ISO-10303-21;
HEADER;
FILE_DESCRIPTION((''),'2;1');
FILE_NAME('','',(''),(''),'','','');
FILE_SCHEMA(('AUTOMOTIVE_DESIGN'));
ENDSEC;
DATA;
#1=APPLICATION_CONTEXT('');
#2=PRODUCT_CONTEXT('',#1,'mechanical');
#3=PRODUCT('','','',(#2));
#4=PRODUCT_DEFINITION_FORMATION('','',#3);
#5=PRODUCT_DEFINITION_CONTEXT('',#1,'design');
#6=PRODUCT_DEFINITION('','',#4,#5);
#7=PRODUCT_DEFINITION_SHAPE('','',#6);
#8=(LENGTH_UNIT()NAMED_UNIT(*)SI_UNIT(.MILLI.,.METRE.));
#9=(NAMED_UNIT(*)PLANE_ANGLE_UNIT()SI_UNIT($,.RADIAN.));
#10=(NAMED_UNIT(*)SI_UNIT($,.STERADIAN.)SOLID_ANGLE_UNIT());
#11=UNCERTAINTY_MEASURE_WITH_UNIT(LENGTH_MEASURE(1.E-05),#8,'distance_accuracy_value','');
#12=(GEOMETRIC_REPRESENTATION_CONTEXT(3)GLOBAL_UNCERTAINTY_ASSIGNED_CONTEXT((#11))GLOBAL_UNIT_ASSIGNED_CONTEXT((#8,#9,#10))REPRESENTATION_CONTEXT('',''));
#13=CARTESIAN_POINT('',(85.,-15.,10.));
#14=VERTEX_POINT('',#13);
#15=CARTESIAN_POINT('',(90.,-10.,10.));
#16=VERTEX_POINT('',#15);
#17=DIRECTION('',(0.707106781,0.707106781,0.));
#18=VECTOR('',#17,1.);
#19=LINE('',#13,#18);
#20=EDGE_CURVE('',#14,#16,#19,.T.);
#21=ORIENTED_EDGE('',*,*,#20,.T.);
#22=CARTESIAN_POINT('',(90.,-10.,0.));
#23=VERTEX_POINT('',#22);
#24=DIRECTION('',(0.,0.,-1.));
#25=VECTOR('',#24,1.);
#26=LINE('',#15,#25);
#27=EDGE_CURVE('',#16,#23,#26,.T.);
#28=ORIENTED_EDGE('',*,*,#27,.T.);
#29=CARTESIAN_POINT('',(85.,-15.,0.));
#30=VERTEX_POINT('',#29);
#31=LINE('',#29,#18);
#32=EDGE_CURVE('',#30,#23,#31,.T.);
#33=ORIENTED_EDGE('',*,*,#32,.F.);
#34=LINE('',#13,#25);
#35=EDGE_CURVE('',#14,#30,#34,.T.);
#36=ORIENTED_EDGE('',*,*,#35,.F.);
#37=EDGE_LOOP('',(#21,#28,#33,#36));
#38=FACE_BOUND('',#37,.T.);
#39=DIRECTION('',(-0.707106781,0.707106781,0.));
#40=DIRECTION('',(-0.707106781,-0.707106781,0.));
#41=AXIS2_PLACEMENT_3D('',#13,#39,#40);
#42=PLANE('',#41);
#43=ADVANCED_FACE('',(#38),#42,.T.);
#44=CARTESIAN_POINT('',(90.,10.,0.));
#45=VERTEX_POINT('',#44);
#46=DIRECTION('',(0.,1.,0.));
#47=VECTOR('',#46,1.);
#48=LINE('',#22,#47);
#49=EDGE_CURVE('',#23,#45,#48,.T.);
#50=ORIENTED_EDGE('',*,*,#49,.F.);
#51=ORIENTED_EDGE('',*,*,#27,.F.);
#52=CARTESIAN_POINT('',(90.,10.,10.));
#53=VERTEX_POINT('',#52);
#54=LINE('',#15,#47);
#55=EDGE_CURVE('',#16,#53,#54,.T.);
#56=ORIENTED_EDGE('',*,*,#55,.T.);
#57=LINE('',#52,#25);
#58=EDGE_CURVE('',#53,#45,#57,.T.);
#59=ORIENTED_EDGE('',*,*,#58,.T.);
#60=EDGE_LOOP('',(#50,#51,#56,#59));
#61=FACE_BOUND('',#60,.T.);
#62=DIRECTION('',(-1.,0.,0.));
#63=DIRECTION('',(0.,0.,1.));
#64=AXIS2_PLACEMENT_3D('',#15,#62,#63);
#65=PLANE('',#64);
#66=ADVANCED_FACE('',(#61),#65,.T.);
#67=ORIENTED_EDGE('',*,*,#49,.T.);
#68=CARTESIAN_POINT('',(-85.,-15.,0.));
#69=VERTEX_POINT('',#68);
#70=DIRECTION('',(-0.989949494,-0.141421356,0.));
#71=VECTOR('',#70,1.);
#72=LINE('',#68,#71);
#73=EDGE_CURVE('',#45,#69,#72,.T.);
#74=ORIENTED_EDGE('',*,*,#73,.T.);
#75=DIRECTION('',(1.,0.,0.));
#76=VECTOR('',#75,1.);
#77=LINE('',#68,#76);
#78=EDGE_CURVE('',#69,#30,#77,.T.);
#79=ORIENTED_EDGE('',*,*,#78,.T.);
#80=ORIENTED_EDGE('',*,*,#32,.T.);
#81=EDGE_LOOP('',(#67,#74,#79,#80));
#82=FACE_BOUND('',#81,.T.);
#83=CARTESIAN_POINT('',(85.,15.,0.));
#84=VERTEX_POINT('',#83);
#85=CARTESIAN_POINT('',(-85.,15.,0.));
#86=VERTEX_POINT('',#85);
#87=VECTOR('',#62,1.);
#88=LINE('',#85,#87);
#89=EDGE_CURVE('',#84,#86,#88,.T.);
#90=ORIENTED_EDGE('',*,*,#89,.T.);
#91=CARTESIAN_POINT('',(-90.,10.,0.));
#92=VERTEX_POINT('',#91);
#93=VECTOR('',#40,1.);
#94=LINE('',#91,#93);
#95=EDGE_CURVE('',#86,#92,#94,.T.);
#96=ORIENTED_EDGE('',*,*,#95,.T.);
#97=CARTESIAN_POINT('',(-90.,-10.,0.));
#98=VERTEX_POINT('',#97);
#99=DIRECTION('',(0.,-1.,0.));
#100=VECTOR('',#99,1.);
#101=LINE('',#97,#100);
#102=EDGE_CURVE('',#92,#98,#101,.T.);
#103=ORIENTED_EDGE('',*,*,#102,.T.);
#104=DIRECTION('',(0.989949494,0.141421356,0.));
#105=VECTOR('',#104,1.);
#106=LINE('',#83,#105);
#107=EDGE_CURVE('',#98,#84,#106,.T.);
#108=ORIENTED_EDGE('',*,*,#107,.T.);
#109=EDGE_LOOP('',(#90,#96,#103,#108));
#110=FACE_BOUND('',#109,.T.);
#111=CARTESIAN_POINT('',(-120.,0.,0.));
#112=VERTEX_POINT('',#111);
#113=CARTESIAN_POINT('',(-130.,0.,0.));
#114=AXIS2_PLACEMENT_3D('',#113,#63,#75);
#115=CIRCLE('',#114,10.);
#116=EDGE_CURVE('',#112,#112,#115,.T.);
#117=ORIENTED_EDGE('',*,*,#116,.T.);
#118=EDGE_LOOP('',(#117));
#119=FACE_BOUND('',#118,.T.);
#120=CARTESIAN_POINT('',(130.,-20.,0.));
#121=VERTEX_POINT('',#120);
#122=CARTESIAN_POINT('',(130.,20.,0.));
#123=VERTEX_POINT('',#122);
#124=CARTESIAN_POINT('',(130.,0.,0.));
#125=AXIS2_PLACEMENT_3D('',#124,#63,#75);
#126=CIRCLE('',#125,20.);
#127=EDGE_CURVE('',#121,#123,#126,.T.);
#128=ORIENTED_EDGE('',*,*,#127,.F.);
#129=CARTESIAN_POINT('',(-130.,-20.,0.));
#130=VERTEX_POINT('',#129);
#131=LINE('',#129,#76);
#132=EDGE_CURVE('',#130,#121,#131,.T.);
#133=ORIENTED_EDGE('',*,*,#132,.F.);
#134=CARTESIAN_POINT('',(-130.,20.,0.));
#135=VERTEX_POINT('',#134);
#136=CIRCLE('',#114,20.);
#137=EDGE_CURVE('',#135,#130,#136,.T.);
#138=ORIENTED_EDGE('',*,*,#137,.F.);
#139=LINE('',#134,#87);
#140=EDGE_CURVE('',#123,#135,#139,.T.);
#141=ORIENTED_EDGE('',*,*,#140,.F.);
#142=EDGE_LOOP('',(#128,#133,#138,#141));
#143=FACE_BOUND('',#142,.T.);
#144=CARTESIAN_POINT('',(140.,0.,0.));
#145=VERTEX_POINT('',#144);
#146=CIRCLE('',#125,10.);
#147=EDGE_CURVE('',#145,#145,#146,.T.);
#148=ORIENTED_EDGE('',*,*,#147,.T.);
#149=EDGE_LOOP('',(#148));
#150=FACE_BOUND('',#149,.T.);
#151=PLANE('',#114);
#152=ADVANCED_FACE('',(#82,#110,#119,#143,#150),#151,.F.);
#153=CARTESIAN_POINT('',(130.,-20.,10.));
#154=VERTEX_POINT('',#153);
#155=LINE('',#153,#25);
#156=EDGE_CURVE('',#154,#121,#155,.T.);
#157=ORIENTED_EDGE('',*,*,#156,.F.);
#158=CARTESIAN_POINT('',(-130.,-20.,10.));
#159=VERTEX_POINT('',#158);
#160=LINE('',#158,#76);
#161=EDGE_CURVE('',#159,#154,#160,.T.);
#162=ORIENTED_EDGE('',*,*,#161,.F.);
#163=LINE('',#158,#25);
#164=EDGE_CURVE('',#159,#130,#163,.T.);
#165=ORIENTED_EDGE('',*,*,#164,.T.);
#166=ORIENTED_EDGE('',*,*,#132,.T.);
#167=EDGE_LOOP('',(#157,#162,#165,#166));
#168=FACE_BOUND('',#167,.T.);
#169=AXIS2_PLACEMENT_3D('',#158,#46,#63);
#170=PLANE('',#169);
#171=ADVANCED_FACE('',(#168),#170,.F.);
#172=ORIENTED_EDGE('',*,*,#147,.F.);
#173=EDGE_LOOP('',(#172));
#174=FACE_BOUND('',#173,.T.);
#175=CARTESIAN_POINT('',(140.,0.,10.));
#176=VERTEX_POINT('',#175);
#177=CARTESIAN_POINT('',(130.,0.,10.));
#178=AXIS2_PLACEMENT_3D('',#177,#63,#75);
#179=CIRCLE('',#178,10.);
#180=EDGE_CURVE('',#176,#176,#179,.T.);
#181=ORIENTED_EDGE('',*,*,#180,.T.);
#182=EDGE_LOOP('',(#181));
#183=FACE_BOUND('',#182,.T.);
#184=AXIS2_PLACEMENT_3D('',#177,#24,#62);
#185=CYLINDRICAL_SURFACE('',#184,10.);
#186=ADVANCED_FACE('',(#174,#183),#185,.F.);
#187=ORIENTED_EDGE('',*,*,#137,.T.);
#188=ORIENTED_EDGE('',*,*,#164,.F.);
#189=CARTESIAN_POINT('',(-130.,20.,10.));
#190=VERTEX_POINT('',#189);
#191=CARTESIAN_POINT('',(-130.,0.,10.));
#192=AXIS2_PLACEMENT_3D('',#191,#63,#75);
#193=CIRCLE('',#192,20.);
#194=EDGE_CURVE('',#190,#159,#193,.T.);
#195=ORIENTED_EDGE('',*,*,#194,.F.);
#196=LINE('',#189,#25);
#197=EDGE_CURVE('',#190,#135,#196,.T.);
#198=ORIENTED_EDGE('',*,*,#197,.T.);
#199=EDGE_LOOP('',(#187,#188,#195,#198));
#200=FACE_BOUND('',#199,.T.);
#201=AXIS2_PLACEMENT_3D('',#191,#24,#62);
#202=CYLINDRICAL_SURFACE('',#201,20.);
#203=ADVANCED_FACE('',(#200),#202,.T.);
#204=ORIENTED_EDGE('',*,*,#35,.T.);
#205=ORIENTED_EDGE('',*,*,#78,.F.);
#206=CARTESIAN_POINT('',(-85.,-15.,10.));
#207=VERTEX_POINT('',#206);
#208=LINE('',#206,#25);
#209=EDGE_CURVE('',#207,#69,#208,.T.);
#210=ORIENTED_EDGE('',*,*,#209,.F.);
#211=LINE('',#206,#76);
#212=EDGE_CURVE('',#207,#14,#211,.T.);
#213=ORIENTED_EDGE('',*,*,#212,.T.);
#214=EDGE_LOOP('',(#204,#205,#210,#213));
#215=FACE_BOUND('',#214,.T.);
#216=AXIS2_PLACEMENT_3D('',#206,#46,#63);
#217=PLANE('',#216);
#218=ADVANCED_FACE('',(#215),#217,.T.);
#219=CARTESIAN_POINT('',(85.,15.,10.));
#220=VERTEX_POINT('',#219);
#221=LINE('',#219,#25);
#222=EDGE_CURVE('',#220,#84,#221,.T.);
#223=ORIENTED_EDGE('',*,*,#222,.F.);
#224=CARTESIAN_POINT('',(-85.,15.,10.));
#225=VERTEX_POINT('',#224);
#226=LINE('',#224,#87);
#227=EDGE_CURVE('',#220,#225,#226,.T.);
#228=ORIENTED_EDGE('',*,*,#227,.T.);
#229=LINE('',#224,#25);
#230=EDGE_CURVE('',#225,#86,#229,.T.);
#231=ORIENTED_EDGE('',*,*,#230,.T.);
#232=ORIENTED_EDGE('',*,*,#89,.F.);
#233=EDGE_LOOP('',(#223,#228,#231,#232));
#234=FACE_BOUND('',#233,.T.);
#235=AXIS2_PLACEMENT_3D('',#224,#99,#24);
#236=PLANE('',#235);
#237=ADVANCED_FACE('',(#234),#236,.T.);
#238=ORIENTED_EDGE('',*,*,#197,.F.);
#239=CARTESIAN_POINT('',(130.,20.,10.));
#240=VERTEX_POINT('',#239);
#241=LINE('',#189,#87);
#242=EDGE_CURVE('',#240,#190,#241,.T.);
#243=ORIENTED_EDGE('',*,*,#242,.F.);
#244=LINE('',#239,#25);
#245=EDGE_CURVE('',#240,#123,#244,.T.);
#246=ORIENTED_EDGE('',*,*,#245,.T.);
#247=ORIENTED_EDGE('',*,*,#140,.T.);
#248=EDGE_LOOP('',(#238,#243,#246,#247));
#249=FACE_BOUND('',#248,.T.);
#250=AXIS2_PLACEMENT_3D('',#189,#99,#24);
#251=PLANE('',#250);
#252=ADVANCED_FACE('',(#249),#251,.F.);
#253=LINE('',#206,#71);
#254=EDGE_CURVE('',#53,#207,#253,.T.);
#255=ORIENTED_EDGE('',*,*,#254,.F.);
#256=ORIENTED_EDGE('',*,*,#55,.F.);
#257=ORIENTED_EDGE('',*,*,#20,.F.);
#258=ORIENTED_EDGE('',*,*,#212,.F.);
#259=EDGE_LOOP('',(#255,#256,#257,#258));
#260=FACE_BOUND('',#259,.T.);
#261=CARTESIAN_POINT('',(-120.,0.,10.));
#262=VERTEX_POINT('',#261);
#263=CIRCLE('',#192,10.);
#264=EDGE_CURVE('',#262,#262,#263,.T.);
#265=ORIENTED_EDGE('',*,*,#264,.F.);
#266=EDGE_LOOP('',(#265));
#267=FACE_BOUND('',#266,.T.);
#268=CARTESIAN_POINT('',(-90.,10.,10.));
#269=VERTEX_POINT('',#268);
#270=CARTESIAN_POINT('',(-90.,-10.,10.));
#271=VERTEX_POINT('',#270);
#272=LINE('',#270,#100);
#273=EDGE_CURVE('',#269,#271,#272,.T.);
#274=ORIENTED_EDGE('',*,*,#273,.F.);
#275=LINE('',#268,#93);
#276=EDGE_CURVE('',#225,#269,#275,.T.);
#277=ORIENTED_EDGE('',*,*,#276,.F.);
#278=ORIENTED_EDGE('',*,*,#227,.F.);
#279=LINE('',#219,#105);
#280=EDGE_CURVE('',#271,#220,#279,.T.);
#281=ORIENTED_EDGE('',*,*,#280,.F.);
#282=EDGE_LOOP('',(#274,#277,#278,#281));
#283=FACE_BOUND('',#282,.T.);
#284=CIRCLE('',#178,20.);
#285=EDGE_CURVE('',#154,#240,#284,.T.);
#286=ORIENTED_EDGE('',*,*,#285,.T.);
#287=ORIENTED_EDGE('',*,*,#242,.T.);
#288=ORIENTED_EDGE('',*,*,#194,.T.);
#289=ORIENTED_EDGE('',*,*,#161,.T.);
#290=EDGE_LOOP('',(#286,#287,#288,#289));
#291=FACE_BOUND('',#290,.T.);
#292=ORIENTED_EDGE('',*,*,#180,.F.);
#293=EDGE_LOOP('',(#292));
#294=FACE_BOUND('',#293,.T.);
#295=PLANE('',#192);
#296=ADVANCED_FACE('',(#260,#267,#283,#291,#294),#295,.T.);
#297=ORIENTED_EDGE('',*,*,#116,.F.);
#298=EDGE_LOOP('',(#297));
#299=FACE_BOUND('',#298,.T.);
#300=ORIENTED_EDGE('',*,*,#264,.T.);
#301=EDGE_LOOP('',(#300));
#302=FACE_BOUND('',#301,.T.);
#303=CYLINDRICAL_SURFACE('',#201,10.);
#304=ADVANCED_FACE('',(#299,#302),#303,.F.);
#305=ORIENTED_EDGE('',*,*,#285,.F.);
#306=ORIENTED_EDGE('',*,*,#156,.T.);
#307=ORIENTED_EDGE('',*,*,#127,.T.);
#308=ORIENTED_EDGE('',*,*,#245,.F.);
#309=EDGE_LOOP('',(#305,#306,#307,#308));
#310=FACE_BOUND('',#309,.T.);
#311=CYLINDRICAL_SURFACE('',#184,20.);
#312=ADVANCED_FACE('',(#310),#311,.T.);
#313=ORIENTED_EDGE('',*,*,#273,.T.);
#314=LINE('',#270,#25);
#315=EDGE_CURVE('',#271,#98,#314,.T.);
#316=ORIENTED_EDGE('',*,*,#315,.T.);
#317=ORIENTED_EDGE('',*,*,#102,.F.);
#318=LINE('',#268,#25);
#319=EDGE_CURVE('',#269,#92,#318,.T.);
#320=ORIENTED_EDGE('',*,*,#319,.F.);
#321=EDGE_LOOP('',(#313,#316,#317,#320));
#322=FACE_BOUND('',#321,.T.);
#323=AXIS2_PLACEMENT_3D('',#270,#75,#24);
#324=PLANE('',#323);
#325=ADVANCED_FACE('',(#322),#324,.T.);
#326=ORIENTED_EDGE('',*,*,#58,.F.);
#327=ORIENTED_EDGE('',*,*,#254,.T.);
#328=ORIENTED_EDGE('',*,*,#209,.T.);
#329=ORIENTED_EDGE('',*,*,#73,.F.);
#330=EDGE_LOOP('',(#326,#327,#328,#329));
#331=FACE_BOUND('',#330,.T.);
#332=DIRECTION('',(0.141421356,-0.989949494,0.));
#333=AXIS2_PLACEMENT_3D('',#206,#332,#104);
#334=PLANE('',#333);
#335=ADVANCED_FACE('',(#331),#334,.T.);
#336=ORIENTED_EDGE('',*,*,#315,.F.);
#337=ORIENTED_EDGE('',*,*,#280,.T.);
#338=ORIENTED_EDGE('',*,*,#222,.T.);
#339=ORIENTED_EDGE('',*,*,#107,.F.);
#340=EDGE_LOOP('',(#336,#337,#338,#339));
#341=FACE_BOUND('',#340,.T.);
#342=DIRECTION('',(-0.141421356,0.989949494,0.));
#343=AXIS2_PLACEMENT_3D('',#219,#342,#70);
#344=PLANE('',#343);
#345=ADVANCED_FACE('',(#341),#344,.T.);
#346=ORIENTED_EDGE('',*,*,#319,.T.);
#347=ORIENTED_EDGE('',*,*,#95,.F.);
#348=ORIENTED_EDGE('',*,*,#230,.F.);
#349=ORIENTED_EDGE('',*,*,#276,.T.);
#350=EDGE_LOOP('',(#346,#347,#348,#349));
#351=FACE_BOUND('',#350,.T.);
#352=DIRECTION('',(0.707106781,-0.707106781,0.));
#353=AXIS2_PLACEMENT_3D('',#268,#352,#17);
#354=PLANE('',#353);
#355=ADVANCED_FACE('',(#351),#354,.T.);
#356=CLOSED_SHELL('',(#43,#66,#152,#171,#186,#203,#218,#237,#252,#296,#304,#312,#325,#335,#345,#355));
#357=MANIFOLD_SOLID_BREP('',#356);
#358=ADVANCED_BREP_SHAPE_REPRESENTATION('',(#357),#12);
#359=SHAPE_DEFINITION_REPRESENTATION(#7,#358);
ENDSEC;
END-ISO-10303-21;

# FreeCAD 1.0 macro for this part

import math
import FreeCAD as App
import Part
import Sketcher
from FreeCAD import Vector
Q = App.Units.Quantity


def add_polygon(sketch, points):
    """Adds a closed chain of lines whose ends are joined by coincident constraints."""
    first, n = sketch.GeometryCount, len(points)
    for a, b in zip(points, points[1:] + points[:1]):
        sketch.addGeometry(Part.LineSegment(App.Vector(*a, 0), App.Vector(*b, 0)), False)
    for i in range(n):
        sketch.addConstraint(Sketcher.Constraint("Coincident", first + i, 2, first + (i + 1) % n, 1))

doc = App.newDocument("Part")
body = doc.addObject("PartDesign::Body", "Body")

sketch1 = body.newObject("Sketcher::SketchObject", "Sketch")
sketch1.AttachmentSupport = (doc.getObject("XY_Plane"), [""])
sketch1.MapMode = "FlatFace"
sketch1.addGeometry(Part.LineSegment(Vector(-130, -20, 0), Vector(130, -20, 0)), False)
sketch1.addGeometry(Part.ArcOfCircle(Part.Circle(Vector(130, 0, 0), Vector(0, 0, 1), 20), math.radians(-90), math.radians(90)), False)
sketch1.addGeometry(Part.LineSegment(Vector(130, 20, 0), Vector(-130, 20, 0)), False)
sketch1.addGeometry(Part.ArcOfCircle(Part.Circle(Vector(-130, 0, 0), Vector(0, 0, 1), 20), math.radians(90), math.radians(270)), False)
add_polygon(sketch1, [(85, -15), (-85, -15), (90, 10), (90, -10)])
sketch1.addGeometry(Part.Circle(Vector(-130, 0, 0), Vector(0, 0, 1), 10), False)
add_polygon(sketch1, [(-90, -10), (-90, 10), (-85, 15), (85, 15)])
sketch1.addGeometry(Part.Circle(Vector(130, 0, 0), Vector(0, 0, 1), 10), False)
sketch1.addConstraint([
    Sketcher.Constraint("Tangent", 0, 2, 1, 1),
    Sketcher.Constraint("Tangent", 1, 2, 2, 1),
    Sketcher.Constraint("Tangent", 2, 2, 3, 1),
    Sketcher.Constraint("Tangent", 3, 2, 0, 1),
    Sketcher.Constraint("Horizontal", 0),
    Sketcher.Constraint("Horizontal", 2),
    Sketcher.Constraint("Horizontal", 4),
    Sketcher.Constraint("Vertical", 6),
    Sketcher.Constraint("Vertical", 9),
    Sketcher.Constraint("Horizontal", 11),
    Sketcher.Constraint("Coincident", 8, 3, 3, 3),
    Sketcher.Constraint("Coincident", 13, 3, 1, 3),
    Sketcher.Constraint("Equal", 8, 13),
    Sketcher.Constraint("Symmetric", 1, 3, 3, 3, -1, 1),
    Sketcher.Constraint("Symmetric", 6, 2, 9, 2, -1, 1),
    Sketcher.Constraint("Symmetric", 7, 2, 10, 2, -1, 1),
    Sketcher.Constraint("Parallel", 5, 12),
    Sketcher.Constraint("Horizontal", 5, 2, 9, 2),
    Sketcher.Constraint("Horizontal", 6, 2, 12, 2),
    Sketcher.Constraint("Vertical", 4, 2, 10, 2),
    Sketcher.Constraint("Diameter", 8, 20.0),
    Sketcher.Constraint("Radius", 1, 20.0),
    Sketcher.Constraint("DistanceX", 0, 1, 0, 2, 260.0),
    Sketcher.Constraint("DistanceX", 4, 2, 4, 1, 170.0),
    Sketcher.Constraint("DistanceY", 6, 2, 6, 1, 20.0),
    Sketcher.Constraint("Angle", 7, Q("-135 deg")),
    Sketcher.Constraint("DistanceY", 4, 2, -1, 1, 15.0),
])
pad1 = body.newObject("PartDesign::Pad", "Pad")
pad1.Profile = sketch1
pad1.Length = 10

doc.recompute()
